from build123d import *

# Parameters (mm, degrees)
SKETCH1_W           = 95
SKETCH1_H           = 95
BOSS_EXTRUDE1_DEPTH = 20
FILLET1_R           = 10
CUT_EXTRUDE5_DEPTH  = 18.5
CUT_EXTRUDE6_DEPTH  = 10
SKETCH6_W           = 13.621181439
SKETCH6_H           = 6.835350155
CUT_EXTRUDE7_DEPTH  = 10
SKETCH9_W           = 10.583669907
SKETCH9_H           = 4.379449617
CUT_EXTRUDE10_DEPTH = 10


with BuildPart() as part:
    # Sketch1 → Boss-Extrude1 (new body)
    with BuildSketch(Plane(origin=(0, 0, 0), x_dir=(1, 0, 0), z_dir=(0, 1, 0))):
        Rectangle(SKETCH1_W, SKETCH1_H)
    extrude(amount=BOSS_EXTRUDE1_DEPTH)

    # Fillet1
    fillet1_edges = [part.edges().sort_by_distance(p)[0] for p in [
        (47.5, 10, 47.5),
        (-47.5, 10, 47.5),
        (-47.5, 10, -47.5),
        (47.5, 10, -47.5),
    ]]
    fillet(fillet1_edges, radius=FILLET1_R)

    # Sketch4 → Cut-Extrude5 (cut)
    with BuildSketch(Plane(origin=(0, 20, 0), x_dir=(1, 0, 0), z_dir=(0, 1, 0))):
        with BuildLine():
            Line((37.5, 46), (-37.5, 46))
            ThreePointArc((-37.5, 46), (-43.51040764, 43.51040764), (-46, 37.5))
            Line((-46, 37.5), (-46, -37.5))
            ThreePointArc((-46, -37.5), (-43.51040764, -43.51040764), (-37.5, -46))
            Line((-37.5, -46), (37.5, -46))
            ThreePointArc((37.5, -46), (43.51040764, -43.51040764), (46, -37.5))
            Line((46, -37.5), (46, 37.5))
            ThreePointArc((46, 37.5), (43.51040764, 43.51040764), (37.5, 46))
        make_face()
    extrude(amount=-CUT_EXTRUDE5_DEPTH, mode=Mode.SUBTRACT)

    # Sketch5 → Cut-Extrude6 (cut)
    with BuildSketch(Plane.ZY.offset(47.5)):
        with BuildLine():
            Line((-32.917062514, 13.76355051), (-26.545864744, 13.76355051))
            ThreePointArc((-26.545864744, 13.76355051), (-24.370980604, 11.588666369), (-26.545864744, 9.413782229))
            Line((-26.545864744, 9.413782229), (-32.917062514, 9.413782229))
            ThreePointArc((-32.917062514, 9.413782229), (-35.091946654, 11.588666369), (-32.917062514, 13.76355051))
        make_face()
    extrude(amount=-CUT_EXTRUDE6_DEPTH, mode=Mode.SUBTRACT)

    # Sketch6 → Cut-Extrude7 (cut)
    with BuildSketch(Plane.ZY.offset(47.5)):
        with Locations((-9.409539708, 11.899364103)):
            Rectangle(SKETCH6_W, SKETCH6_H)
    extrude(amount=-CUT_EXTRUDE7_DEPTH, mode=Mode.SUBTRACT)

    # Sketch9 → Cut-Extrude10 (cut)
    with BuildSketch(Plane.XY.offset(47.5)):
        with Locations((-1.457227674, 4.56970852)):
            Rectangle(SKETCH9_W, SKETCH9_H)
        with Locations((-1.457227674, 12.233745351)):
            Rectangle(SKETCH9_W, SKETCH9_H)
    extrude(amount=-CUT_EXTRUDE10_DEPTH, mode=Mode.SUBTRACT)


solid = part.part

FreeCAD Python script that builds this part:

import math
import FreeCAD as App
import Part
import Sketcher
Q = App.Units.Quantity


def edges_at(feature, points):
    """Names of the edges that pass closest to the given points."""
    edges = feature.Shape.Edges
    near = lambda p: min(range(len(edges)), key=lambda i: edges[i].distToShape(Part.Vertex(*p))[0])
    return sorted({f"Edge{near(p) + 1}" for p in points})

doc = App.newDocument("Part")
body = doc.addObject("PartDesign::Body", "Body")

sketch1 = doc.addObject("Sketcher::SketchObject", "Sketch")
body.addObject(sketch1)
sketch1.AttachmentSupport = (doc.XZ_Plane, [""])
sketch1.MapMode = "FlatFace"
sketch1.addGeometry(Part.LineSegment(App.Vector(-48, -48, 0), App.Vector(-48, 48, 0)), False)
sketch1.addGeometry(Part.LineSegment(App.Vector(-48, 48, 0), App.Vector(48, 48, 0)), False)
sketch1.addGeometry(Part.LineSegment(App.Vector(48, 48, 0), App.Vector(48, -48, 0)), False)
sketch1.addGeometry(Part.LineSegment(App.Vector(48, -48, 0), App.Vector(-48, -48, 0)), False)
sketch1.addConstraint(Sketcher.Constraint("Coincident", 0, 2, 1, 1))
sketch1.addConstraint(Sketcher.Constraint("Coincident", 1, 2, 2, 1))
sketch1.addConstraint(Sketcher.Constraint("Coincident", 2, 2, 3, 1))
sketch1.addConstraint(Sketcher.Constraint("Coincident", 3, 2, 0, 1))
sketch1.addConstraint(Sketcher.Constraint("Vertical", 0))
sketch1.addConstraint(Sketcher.Constraint("Horizontal", 1))
sketch1.addConstraint(Sketcher.Constraint("Vertical", 2))
sketch1.addConstraint(Sketcher.Constraint("Horizontal", 3))
sketch1.addConstraint(Sketcher.Constraint("Symmetric", 0, 2, 2, 2, -1, 1))
sketch1.addConstraint(Sketcher.Constraint("Equal", 3, 0))
sketch1.addConstraint(Sketcher.Constraint("DistanceX", 1, 1, 1, 2, Q("95 mm")))
pad1 = doc.addObject("PartDesign::Pad", "Pad")
body.addObject(pad1)
pad1.Profile = sketch1
pad1.Length = 20
pad1.Reversed = True
doc.recompute()

fillet = doc.addObject("PartDesign::Fillet", "Fillet")
body.addObject(fillet)
fillet.Base = (pad1, edges_at(pad1, [
    (47.5, 10, 47.5),
    (-47.5, 10, 47.5),
    (-47.5, 10, -47.5),
    (47.5, 10, -47.5),
]))
fillet.Radius = 10

sketch2 = doc.addObject("Sketcher::SketchObject", "Sketch001")
body.addObject(sketch2)
sketch2.AttachmentSupport = (doc.XZ_Plane, [""])
sketch2.MapMode = "FlatFace"
sketch2.AttachmentOffset = App.Placement(App.Vector(0, 0, -20), App.Rotation())
sketch2.addGeometry(Part.LineSegment(App.Vector(38, -46, 0), App.Vector(-38, -46, 0)), False)
sketch2.addGeometry(Part.ArcOfCircle(Part.Circle(App.Vector(-38, -38, 0), App.Vector(0, 0, 1), 8), math.radians(180), math.radians(270)), False)
sketch2.addGeometry(Part.LineSegment(App.Vector(-46, -38, 0), App.Vector(-46, 38, 0)), False)
sketch2.addGeometry(Part.ArcOfCircle(Part.Circle(App.Vector(-38, 38, 0), App.Vector(0, 0, 1), 8), math.radians(90), math.radians(180)), False)
sketch2.addGeometry(Part.LineSegment(App.Vector(-38, 46, 0), App.Vector(38, 46, 0)), False)
sketch2.addGeometry(Part.ArcOfCircle(Part.Circle(App.Vector(38, 38, 0), App.Vector(0, 0, 1), 8), math.radians(0), math.radians(90)), False)
sketch2.addGeometry(Part.LineSegment(App.Vector(46, 38, 0), App.Vector(46, -38, 0)), False)
sketch2.addGeometry(Part.ArcOfCircle(Part.Circle(App.Vector(38, -38, 0), App.Vector(0, 0, 1), 8), math.radians(-90), math.radians(0)), False)
sketch2.addConstraint(Sketcher.Constraint("Tangent", 0, 2, 1, 2))
sketch2.addConstraint(Sketcher.Constraint("Tangent", 1, 1, 2, 1))
sketch2.addConstraint(Sketcher.Constraint("Tangent", 2, 2, 3, 2))
sketch2.addConstraint(Sketcher.Constraint("Tangent", 3, 1, 4, 1))
sketch2.addConstraint(Sketcher.Constraint("Tangent", 4, 2, 5, 2))
sketch2.addConstraint(Sketcher.Constraint("Tangent", 5, 1, 6, 1))
sketch2.addConstraint(Sketcher.Constraint("Tangent", 6, 2, 7, 2))
sketch2.addConstraint(Sketcher.Constraint("Tangent", 7, 1, 0, 1))
sketch2.addConstraint(Sketcher.Constraint("Horizontal", 0))
sketch2.addConstraint(Sketcher.Constraint("Vertical", 2))
sketch2.addConstraint(Sketcher.Constraint("Horizontal", 4))
sketch2.addConstraint(Sketcher.Constraint("Vertical", 6))
sketch2.addConstraint(Sketcher.Constraint("Equal", 1, 3))
sketch2.addConstraint(Sketcher.Constraint("Equal", 3, 5))
sketch2.addConstraint(Sketcher.Constraint("Equal", 5, 7))
sketch2.addConstraint(Sketcher.Constraint("Symmetric", 1, 3, 5, 3, -1, 1))
sketch2.addConstraint(Sketcher.Constraint("Equal", 4, 2))
sketch2.addConstraint(Sketcher.Constraint("Radius", 1, Q("8.5 mm")))
sketch2.addConstraint(Sketcher.Constraint("DistanceX", 0, 2, 0, 1, Q("75 mm")))
pocket1 = doc.addObject("PartDesign::Pocket", "Pocket")
body.addObject(pocket1)
pocket1.Profile = sketch2
pocket1.Length = 18.5
pocket1.Reversed = True

sketch3 = doc.addObject("Sketcher::SketchObject", "Sketch002")
body.addObject(sketch3)
sketch3.AttachmentSupport = (doc.YZ_Plane, [""])
sketch3.MapMode = "FlatFace"
sketch3.AttachmentOffset = App.Placement(App.Vector(0, 0, -47.5), App.Rotation())
sketch3.addGeometry(Part.LineSegment(App.Vector(13.8, -26.5, 0), App.Vector(13.8, -32.9, 0)), False)
sketch3.addGeometry(Part.ArcOfCircle(Part.Circle(App.Vector(11.6, -32.9, 0), App.Vector(0, 0, 1), 2.2), math.radians(-180), math.radians(0)), False)
sketch3.addGeometry(Part.LineSegment(App.Vector(9.4, -32.9, 0), App.Vector(9.4, -26.5, 0)), False)
sketch3.addGeometry(Part.ArcOfCircle(Part.Circle(App.Vector(11.6, -26.5, 0), App.Vector(0, 0, 1), 2.2), math.radians(0), math.radians(180)), False)
sketch3.addConstraint(Sketcher.Constraint("Tangent", 0, 2, 1, 2))
sketch3.addConstraint(Sketcher.Constraint("Tangent", 1, 1, 2, 1))
sketch3.addConstraint(Sketcher.Constraint("Tangent", 2, 2, 3, 2))
sketch3.addConstraint(Sketcher.Constraint("Tangent", 3, 1, 0, 1))
sketch3.addConstraint(Sketcher.Constraint("Vertical", 0))
sketch3.addConstraint(Sketcher.Constraint("Vertical", 2))
sketch3.addConstraint(Sketcher.Constraint("Radius", 1, Q("2.174884 mm")))
sketch3.addConstraint(Sketcher.Constraint("DistanceY", 0, 2, 0, 1, Q("6.371198 mm")))
sketch3.addConstraint(Sketcher.Constraint("DistanceX", -1, 1, 0, 2, Q("13.763551 mm")))
sketch3.addConstraint(Sketcher.Constraint("DistanceY", 1, 3, -1, 1, Q("32.917063 mm")))
pocket2 = doc.addObject("PartDesign::Pocket", "Pocket001")
body.addObject(pocket2)
pocket2.Profile = sketch3
pocket2.Length = 10
pocket2.Reversed = True

sketch4 = doc.addObject("Sketcher::SketchObject", "Sketch003")
body.addObject(sketch4)
sketch4.AttachmentSupport = (doc.YZ_Plane, [""])
sketch4.MapMode = "FlatFace"
sketch4.AttachmentOffset = App.Placement(App.Vector(0, 0, -47.5), App.Rotation())
sketch4.addGeometry(Part.LineSegment(App.Vector(15, -16, 0), App.Vector(8, -16, 0)), False)
sketch4.addGeometry(Part.LineSegment(App.Vector(8, -16, 0), App.Vector(8, -3, 0)), False)
sketch4.addGeometry(Part.LineSegment(App.Vector(8, -3, 0), App.Vector(15, -3, 0)), False)
sketch4.addGeometry(Part.LineSegment(App.Vector(15, -3, 0), App.Vector(15, -16, 0)), False)
sketch4.addConstraint(Sketcher.Constraint("Coincident", 0, 2, 1, 1))
sketch4.addConstraint(Sketcher.Constraint("Coincident", 1, 2, 2, 1))
sketch4.addConstraint(Sketcher.Constraint("Coincident", 2, 2, 3, 1))
sketch4.addConstraint(Sketcher.Constraint("Coincident", 3, 2, 0, 1))
sketch4.addConstraint(Sketcher.Constraint("Horizontal", 0))
sketch4.addConstraint(Sketcher.Constraint("Vertical", 1))
sketch4.addConstraint(Sketcher.Constraint("Horizontal", 2))
sketch4.addConstraint(Sketcher.Constraint("Vertical", 3))
sketch4.addConstraint(Sketcher.Constraint("DistanceX", 0, 2, 0, 1, Q("6.83535 mm")))
sketch4.addConstraint(Sketcher.Constraint("DistanceY", 1, 1, 1, 2, Q("13.621181 mm")))
sketch4.addConstraint(Sketcher.Constraint("DistanceX", -1, 1, 0, 2, Q("8.481689 mm")))
sketch4.addConstraint(Sketcher.Constraint("DistanceY", 0, 2, -1, 1, Q("16.22013 mm")))
pocket3 = doc.addObject("PartDesign::Pocket", "Pocket002")
body.addObject(pocket3)
pocket3.Profile = sketch4
pocket3.Length = 10
pocket3.Reversed = True

sketch5 = doc.addObject("Sketcher::SketchObject", "Sketch004")
body.addObject(sketch5)
sketch5.AttachmentSupport = (doc.XY_Plane, [""])
sketch5.MapMode = "FlatFace"
sketch5.AttachmentOffset = App.Placement(App.Vector(0, 0, 47.5), App.Rotation())
sketch5.addGeometry(Part.LineSegment(App.Vector(-6.7, 6.8, 0), App.Vector(-6.7, 2.4, 0)), False)
sketch5.addGeometry(Part.LineSegment(App.Vector(-6.7, 2.4, 0), App.Vector(3.8, 2.4, 0)), False)
sketch5.addGeometry(Part.LineSegment(App.Vector(3.8, 2.4, 0), App.Vector(3.8, 6.8, 0)), False)
sketch5.addGeometry(Part.LineSegment(App.Vector(3.8, 6.8, 0), App.Vector(-6.7, 6.8, 0)), False)
sketch5.addGeometry(Part.LineSegment(App.Vector(-6.7, 14.4, 0), App.Vector(-6.7, 10, 0)), False)
sketch5.addGeometry(Part.LineSegment(App.Vector(-6.7, 10, 0), App.Vector(3.8, 10, 0)), False)
sketch5.addGeometry(Part.LineSegment(App.Vector(3.8, 10, 0), App.Vector(3.8, 14.4, 0)), False)
sketch5.addGeometry(Part.LineSegment(App.Vector(3.8, 14.4, 0), App.Vector(-6.7, 14.4, 0)), False)
sketch5.addConstraint(Sketcher.Constraint("Coincident", 0, 2, 1, 1))
sketch5.addConstraint(Sketcher.Constraint("Coincident", 1, 2, 2, 1))
sketch5.addConstraint(Sketcher.Constraint("Coincident", 2, 2, 3, 1))
sketch5.addConstraint(Sketcher.Constraint("Coincident", 3, 2, 0, 1))
sketch5.addConstraint(Sketcher.Constraint("Coincident", 4, 2, 5, 1))
sketch5.addConstraint(Sketcher.Constraint("Coincident", 5, 2, 6, 1))
sketch5.addConstraint(Sketcher.Constraint("Coincident", 6, 2, 7, 1))
sketch5.addConstraint(Sketcher.Constraint("Coincident", 7, 2, 4, 1))
sketch5.addConstraint(Sketcher.Constraint("Vertical", 0))
sketch5.addConstraint(Sketcher.Constraint("Horizontal", 1))
sketch5.addConstraint(Sketcher.Constraint("Vertical", 2))
sketch5.addConstraint(Sketcher.Constraint("Horizontal", 3))
sketch5.addConstraint(Sketcher.Constraint("Vertical", 4))
sketch5.addConstraint(Sketcher.Constraint("Horizontal", 5))
sketch5.addConstraint(Sketcher.Constraint("Vertical", 6))
sketch5.addConstraint(Sketcher.Constraint("Horizontal", 7))
sketch5.addConstraint(Sketcher.Constraint("Vertical", 3, 2, 4, 2))
sketch5.addConstraint(Sketcher.Constraint("Vertical", 2, 2, 5, 2))
sketch5.addConstraint(Sketcher.Constraint("Equal", 2, 4))
sketch5.addConstraint(Sketcher.Constraint("DistanceX", 1, 1, 1, 2, Q("10.58367 mm")))
sketch5.addConstraint(Sketcher.Constraint("DistanceY", 0, 2, 0, 1, Q("4.37945 mm")))
sketch5.addConstraint(Sketcher.Constraint("DistanceY", -1, 1, 4, 2, Q("10.044021 mm")))
sketch5.addConstraint(Sketcher.Constraint("DistanceX", 0, 2, -1, 1, Q("6.749063 mm")))
sketch5.addConstraint(Sketcher.Constraint("DistanceY", -1, 1, 0, 2, Q("2.379984 mm")))
pocket4 = doc.addObject("PartDesign::Pocket", "Pocket003")
body.addObject(pocket4)
pocket4.Profile = sketch5
pocket4.Length = 10

doc.recompute()
